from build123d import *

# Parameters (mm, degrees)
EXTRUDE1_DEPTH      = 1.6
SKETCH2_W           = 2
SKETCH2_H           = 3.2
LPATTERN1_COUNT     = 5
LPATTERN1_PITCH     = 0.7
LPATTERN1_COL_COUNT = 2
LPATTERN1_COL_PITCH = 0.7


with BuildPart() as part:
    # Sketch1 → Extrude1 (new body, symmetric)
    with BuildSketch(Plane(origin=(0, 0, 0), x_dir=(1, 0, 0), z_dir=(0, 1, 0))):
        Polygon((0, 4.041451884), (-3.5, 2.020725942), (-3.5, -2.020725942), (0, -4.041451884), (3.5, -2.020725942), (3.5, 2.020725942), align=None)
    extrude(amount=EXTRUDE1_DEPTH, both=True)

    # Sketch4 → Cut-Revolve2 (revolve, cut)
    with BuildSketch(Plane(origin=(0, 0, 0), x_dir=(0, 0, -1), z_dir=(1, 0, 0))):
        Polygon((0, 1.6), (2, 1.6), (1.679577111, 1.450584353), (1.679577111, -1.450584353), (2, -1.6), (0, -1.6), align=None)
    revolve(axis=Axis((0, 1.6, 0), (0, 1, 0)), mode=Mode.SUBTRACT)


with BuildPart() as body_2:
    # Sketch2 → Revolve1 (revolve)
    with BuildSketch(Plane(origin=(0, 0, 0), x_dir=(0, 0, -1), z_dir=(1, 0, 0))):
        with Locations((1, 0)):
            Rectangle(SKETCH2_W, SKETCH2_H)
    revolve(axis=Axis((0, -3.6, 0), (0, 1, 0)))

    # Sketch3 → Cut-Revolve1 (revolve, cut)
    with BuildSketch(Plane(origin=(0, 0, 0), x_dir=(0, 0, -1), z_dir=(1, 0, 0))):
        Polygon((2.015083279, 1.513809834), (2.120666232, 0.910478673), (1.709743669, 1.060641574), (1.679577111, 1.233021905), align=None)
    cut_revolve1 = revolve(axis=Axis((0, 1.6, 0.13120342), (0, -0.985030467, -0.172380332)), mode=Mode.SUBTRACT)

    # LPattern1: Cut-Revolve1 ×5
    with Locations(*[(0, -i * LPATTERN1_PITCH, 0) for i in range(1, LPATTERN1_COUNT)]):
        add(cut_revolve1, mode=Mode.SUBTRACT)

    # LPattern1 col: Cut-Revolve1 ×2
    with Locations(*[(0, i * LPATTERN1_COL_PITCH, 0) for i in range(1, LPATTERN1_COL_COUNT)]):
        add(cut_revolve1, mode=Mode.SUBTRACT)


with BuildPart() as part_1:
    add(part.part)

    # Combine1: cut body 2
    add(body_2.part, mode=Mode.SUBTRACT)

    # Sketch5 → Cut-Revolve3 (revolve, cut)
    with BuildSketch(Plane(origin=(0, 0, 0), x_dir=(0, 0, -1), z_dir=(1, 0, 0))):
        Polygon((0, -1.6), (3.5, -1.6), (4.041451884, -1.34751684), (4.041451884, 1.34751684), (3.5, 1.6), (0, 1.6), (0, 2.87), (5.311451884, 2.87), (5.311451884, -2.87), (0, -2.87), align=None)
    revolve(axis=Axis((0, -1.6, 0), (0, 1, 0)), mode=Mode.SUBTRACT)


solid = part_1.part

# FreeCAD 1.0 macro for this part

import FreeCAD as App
import Part
import Sketcher
from FreeCAD import Vector
Q = App.Units.Quantity


def add_polygon(sketch, points):
    """Adds a closed chain of lines whose ends are joined by coincident constraints."""
    first, n = sketch.GeometryCount, len(points)
    for a, b in zip(points, points[1:] + points[:1]):
        sketch.addGeometry(Part.LineSegment(App.Vector(*a, 0), App.Vector(*b, 0)), False)
    for i in range(n):
        sketch.addConstraint(Sketcher.Constraint("Coincident", first + i, 2, first + (i + 1) % n, 1))

doc = App.newDocument("Part")
params = doc.addObject("Spreadsheet::Sheet", "Params")
for row, (alias, value) in enumerate([
    ("pad1_length", "3.2 mm"),
    ("sketch2_height", "2 mm"),
    ("sketch2_width", "3.2 mm"),
    ("groove_angle", "360 deg"),
    ("sketch3_height", "2 mm"),
    ("sketch3_width", "3.2 mm"),
    ("revolution_angle", "360 deg"),
    ("groove2_angle", "360 deg"),
    ("linearpattern_pitch", "0.7 mm"),
    ("linearpattern2_pitch", "0.7 mm"),
    ("sketch5_height", "3.5 mm"),
    ("sketch5_width", "1.27 mm"),
    ("sketch5_width2", "5.74 mm"),
    ("groove3_angle", "360 deg"),
], start=1):
    params.set(f"A{row}", alias)
    params.set(f"B{row}", "=" + value)
    params.setAlias(f"B{row}", alias)

body = doc.addObject("PartDesign::Body", "Body")

sketch1 = body.newObject("Sketcher::SketchObject", "Sketch")
sketch1.AttachmentSupport = (doc.getObject("XZ_Plane"), [""])
sketch1.MapMode = "FlatFace"
add_polygon(sketch1, [(0, -4.041452), (-3.5, -2.020726), (-3.5, 2.020726), (0, 4.041452), (3.5, 2.020726), (3.5, -2.020726)])
sketch1.addConstraint(Sketcher.Constraint("Vertical", 1))
sketch1.addConstraint(Sketcher.Constraint("Vertical", 4))
sketch1.addConstraint(Sketcher.Constraint("Symmetric", 0, 2, 3, 2, -1, 1))
sketch1.addConstraint(Sketcher.Constraint("Symmetric", 2, 2, 5, 2, -1, 1))
sketch1.addConstraint(Sketcher.Constraint("PointOnObject", 2, 2, -2))
sketch1.addConstraint(Sketcher.Constraint("Parallel", 2, 5))
sketch1.addConstraint(Sketcher.Constraint("Horizontal", 1, 2, 3, 2))
sketch1.addConstraint(Sketcher.Constraint("Angle", 0, Q("150 deg")))
sketch1.addConstraint(Sketcher.Constraint("DistanceX", 1, 2, 3, 2, 7.0))
sketch1.addConstraint(Sketcher.Constraint("DistanceY", 1, 1, 1, 2, 4.041452))
pad1 = body.newObject("PartDesign::Pad", "Pad")
pad1.Profile = sketch1
pad1.setExpression("Length", "Params.pad1_length")
pad1.Midplane = True

sketch2 = body.newObject("Sketcher::SketchObject", "Sketch001")
sketch2.AttachmentSupport = (doc.getObject("YZ_Plane"), [""])
sketch2.MapMode = "FlatFace"
add_polygon(sketch2, [(1.6, -2), (1.6, 0), (-1.6, 0), (-1.6, -2), (-1.450584, -1.679577), (1.450584, -1.679577)])
sketch2.addConstraint(Sketcher.Constraint("Vertical", 0))
sketch2.addConstraint(Sketcher.Constraint("Horizontal", 1))
sketch2.addConstraint(Sketcher.Constraint("Vertical", 2))
sketch2.addConstraint(Sketcher.Constraint("Horizontal", 4))
sketch2.addConstraint(Sketcher.Constraint("Symmetric", 0, 2, 1, 2, -1, 1))
sketch2.addConstraint(Sketcher.Constraint("Horizontal", 2, 2, 5, 2))
sketch2.addConstraint(Sketcher.Constraint("Equal", 3, 5))
sketch2.addConstraint(Sketcher.Constraint("DistanceY", 0, 1, 0, 2, 2.0))
sketch2.addConstraint(Sketcher.Constraint("Angle", 3, Q("65 deg")))
sketch2.addConstraint(Sketcher.Constraint("DistanceX", 1, 2, 1, 1, 3.2))
sketch2.addConstraint(Sketcher.Constraint("DistanceX", 4, 1, 4, 2, 2.901169))
sketch2.setExpression("Constraints[13]", "Params.sketch2_height")
sketch2.setExpression("Constraints[15]", "Params.sketch2_width")
groove = body.newObject("PartDesign::Groove", "Groove")
groove.Profile = sketch2
groove.ReferenceAxis = (sketch2, ["H_Axis"])
groove.setExpression("Angle", "Params.groove_angle")
body2 = doc.addObject("PartDesign::Body", "Body001")

sketch3 = body2.newObject("Sketcher::SketchObject", "Sketch002")
sketch3.AttachmentSupport = (doc.getObject("YZ_Plane001"), [""])
sketch3.MapMode = "FlatFace"
add_polygon(sketch3, [(1.6, 0), (-1.6, 0), (-1.6, -2), (1.6, -2)])
sketch3.addConstraint(Sketcher.Constraint("Horizontal", 0))
sketch3.addConstraint(Sketcher.Constraint("Vertical", 1))
sketch3.addConstraint(Sketcher.Constraint("Horizontal", 2))
sketch3.addConstraint(Sketcher.Constraint("Vertical", 3))
sketch3.addConstraint(Sketcher.Constraint("Symmetric", 0, 2, 3, 2, -1, 1))
sketch3.addConstraint(Sketcher.Constraint("DistanceY", 1, 2, 1, 1, 2.0))
sketch3.addConstraint(Sketcher.Constraint("DistanceX", 0, 2, 0, 1, 3.2))
sketch3.setExpression("Constraints[9]", "Params.sketch3_height")
sketch3.setExpression("Constraints[10]", "Params.sketch3_width")
revolution = body2.newObject("PartDesign::Revolution", "Revolution")
revolution.Profile = sketch3
revolution.ReferenceAxis = (sketch3, ["H_Axis"])
revolution.setExpression("Angle", "Params.revolution_angle")

sketch4 = body2.newObject("Sketcher::SketchObject", "Sketch003")
sketch4.AttachmentSupport = (doc.getObject("YZ_Plane001"), [""])
sketch4.MapMode = "FlatFace"
add_polygon(sketch4, [(0.910479, -2.120666), (1.51381, -2.015083), (1.233022, -1.679577), (1.060642, -1.709744)])
sketch4.addGeometry(Part.LineSegment(Vector(1.151932, 0.052791, 0), Vector(0.548601, -0.052791, 0)), True)
sketch4.addConstraint(Sketcher.Constraint("Parallel", 0, 2))
sketch4.addConstraint(Sketcher.Constraint("Parallel", 2, 4))
sketch4.addConstraint(Sketcher.Constraint("Equal", 1, 3))
sketch4.addConstraint(Sketcher.Constraint("Equal", 0, 4))
sketch4.addConstraint(Sketcher.Constraint("Distance", 2, 0.175))
sketch4.addConstraint(Sketcher.Constraint("Distance", 0, 0.6125))
sketch4.addConstraint(Sketcher.Constraint("Distance", 1, 0.4375))
sketch4.addConstraint(Sketcher.Constraint("DistanceX", -1, 1, 4, 2, 0.548601))
sketch4.addConstraint(Sketcher.Constraint("DistanceX", -1, 1, 0, 2, 1.51381))
sketch4.addConstraint(Sketcher.Constraint("DistanceX", -1, 1, 1, 2, 1.233022))
sketch4.addConstraint(Sketcher.Constraint("DistanceY", -1, 1, 4, 1, 0.052791))
sketch4.addConstraint(Sketcher.Constraint("DistanceY", 1, 2, 4, 1, 1.732369))
groove2 = body2.newObject("PartDesign::Groove", "Groove001")
groove2.Profile = sketch4
groove2.ReferenceAxis = (sketch4, ["Axis0"])
groove2.setExpression("Angle", "Params.groove2_angle")
doc.recompute()

linearpattern = body2.newObject("PartDesign::LinearPattern", "LinearPattern")
linearpattern.Originals = [groove2]
linearpattern.Direction = (doc.getObject("Y_Axis001"), [""])
linearpattern.Mode = "offset"
linearpattern.setExpression("Offset", "Params.linearpattern_pitch")
linearpattern.Occurrences = 5
linearpattern.Reversed = True
body2.Tip = linearpattern
doc.recompute()

linearpattern2 = body2.newObject("PartDesign::LinearPattern", "LinearPattern001")
linearpattern2.Originals = [groove2]
linearpattern2.Direction = (doc.getObject("Y_Axis001"), [""])
linearpattern2.Mode = "offset"
linearpattern2.setExpression("Offset", "Params.linearpattern2_pitch")
linearpattern2.Occurrences = 2
body2.Tip = linearpattern2
doc.recompute()

boolean = body.newObject("PartDesign::Boolean", "Boolean")
boolean.Type = "Cut"
boolean.addObjects([body2])

sketch5 = body.newObject("Sketcher::SketchObject", "Sketch004")
sketch5.AttachmentSupport = (doc.getObject("YZ_Plane"), [""])
sketch5.MapMode = "FlatFace"
add_polygon(sketch5, [(-1.6, -3.5), (-1.6, 0), (-2.87, 0), (-2.87, -5.311452), (2.87, -5.311452), (2.87, 0), (1.6, 0), (1.6, -3.5), (1.347517, -4.041452), (-1.347517, -4.041452)])
sketch5.addConstraint(Sketcher.Constraint("Vertical", 0))
sketch5.addConstraint(Sketcher.Constraint("Horizontal", 1))
sketch5.addConstraint(Sketcher.Constraint("Vertical", 2))
sketch5.addConstraint(Sketcher.Constraint("Horizontal", 3))
sketch5.addConstraint(Sketcher.Constraint("Vertical", 4))
sketch5.addConstraint(Sketcher.Constraint("Horizontal", 5))
sketch5.addConstraint(Sketcher.Constraint("Vertical", 6))
sketch5.addConstraint(Sketcher.Constraint("Horizontal", 8))
sketch5.addConstraint(Sketcher.Constraint("Symmetric", 1, 2, 4, 2, -1, 1))
sketch5.addConstraint(Sketcher.Constraint("Symmetric", 0, 2, 5, 2, -2))
sketch5.addConstraint(Sketcher.Constraint("Horizontal", 6, 2, 9, 2))
sketch5.addConstraint(Sketcher.Constraint("Equal", 7, 9))
sketch5.addConstraint(Sketcher.Constraint("Angle", 7, Q("-115 deg")))
sketch5.addConstraint(Sketcher.Constraint("DistanceY", 0, 1, 0, 2, 3.5))
sketch5.addConstraint(Sketcher.Constraint("DistanceX", 1, 2, 1, 1, 1.27))
sketch5.addConstraint(Sketcher.Constraint("DistanceX", 3, 1, 3, 2, 5.74))
sketch5.addConstraint(Sketcher.Constraint("DistanceY", 3, 2, 7, 2, 1.27))
sketch5.addConstraint(Sketcher.Constraint("DistanceY", 2, 2, 2, 1, 5.311452))
sketch5.setExpression("Constraints[23]", "Params.sketch5_height")
sketch5.setExpression("Constraints[24]", "Params.sketch5_width")
sketch5.setExpression("Constraints[25]", "Params.sketch5_width2")
groove3 = body.newObject("PartDesign::Groove", "Groove002")
groove3.Profile = sketch5
groove3.ReferenceAxis = (sketch5, ["H_Axis"])
groove3.setExpression("Angle", "Params.groove3_angle")

doc.recompute()
